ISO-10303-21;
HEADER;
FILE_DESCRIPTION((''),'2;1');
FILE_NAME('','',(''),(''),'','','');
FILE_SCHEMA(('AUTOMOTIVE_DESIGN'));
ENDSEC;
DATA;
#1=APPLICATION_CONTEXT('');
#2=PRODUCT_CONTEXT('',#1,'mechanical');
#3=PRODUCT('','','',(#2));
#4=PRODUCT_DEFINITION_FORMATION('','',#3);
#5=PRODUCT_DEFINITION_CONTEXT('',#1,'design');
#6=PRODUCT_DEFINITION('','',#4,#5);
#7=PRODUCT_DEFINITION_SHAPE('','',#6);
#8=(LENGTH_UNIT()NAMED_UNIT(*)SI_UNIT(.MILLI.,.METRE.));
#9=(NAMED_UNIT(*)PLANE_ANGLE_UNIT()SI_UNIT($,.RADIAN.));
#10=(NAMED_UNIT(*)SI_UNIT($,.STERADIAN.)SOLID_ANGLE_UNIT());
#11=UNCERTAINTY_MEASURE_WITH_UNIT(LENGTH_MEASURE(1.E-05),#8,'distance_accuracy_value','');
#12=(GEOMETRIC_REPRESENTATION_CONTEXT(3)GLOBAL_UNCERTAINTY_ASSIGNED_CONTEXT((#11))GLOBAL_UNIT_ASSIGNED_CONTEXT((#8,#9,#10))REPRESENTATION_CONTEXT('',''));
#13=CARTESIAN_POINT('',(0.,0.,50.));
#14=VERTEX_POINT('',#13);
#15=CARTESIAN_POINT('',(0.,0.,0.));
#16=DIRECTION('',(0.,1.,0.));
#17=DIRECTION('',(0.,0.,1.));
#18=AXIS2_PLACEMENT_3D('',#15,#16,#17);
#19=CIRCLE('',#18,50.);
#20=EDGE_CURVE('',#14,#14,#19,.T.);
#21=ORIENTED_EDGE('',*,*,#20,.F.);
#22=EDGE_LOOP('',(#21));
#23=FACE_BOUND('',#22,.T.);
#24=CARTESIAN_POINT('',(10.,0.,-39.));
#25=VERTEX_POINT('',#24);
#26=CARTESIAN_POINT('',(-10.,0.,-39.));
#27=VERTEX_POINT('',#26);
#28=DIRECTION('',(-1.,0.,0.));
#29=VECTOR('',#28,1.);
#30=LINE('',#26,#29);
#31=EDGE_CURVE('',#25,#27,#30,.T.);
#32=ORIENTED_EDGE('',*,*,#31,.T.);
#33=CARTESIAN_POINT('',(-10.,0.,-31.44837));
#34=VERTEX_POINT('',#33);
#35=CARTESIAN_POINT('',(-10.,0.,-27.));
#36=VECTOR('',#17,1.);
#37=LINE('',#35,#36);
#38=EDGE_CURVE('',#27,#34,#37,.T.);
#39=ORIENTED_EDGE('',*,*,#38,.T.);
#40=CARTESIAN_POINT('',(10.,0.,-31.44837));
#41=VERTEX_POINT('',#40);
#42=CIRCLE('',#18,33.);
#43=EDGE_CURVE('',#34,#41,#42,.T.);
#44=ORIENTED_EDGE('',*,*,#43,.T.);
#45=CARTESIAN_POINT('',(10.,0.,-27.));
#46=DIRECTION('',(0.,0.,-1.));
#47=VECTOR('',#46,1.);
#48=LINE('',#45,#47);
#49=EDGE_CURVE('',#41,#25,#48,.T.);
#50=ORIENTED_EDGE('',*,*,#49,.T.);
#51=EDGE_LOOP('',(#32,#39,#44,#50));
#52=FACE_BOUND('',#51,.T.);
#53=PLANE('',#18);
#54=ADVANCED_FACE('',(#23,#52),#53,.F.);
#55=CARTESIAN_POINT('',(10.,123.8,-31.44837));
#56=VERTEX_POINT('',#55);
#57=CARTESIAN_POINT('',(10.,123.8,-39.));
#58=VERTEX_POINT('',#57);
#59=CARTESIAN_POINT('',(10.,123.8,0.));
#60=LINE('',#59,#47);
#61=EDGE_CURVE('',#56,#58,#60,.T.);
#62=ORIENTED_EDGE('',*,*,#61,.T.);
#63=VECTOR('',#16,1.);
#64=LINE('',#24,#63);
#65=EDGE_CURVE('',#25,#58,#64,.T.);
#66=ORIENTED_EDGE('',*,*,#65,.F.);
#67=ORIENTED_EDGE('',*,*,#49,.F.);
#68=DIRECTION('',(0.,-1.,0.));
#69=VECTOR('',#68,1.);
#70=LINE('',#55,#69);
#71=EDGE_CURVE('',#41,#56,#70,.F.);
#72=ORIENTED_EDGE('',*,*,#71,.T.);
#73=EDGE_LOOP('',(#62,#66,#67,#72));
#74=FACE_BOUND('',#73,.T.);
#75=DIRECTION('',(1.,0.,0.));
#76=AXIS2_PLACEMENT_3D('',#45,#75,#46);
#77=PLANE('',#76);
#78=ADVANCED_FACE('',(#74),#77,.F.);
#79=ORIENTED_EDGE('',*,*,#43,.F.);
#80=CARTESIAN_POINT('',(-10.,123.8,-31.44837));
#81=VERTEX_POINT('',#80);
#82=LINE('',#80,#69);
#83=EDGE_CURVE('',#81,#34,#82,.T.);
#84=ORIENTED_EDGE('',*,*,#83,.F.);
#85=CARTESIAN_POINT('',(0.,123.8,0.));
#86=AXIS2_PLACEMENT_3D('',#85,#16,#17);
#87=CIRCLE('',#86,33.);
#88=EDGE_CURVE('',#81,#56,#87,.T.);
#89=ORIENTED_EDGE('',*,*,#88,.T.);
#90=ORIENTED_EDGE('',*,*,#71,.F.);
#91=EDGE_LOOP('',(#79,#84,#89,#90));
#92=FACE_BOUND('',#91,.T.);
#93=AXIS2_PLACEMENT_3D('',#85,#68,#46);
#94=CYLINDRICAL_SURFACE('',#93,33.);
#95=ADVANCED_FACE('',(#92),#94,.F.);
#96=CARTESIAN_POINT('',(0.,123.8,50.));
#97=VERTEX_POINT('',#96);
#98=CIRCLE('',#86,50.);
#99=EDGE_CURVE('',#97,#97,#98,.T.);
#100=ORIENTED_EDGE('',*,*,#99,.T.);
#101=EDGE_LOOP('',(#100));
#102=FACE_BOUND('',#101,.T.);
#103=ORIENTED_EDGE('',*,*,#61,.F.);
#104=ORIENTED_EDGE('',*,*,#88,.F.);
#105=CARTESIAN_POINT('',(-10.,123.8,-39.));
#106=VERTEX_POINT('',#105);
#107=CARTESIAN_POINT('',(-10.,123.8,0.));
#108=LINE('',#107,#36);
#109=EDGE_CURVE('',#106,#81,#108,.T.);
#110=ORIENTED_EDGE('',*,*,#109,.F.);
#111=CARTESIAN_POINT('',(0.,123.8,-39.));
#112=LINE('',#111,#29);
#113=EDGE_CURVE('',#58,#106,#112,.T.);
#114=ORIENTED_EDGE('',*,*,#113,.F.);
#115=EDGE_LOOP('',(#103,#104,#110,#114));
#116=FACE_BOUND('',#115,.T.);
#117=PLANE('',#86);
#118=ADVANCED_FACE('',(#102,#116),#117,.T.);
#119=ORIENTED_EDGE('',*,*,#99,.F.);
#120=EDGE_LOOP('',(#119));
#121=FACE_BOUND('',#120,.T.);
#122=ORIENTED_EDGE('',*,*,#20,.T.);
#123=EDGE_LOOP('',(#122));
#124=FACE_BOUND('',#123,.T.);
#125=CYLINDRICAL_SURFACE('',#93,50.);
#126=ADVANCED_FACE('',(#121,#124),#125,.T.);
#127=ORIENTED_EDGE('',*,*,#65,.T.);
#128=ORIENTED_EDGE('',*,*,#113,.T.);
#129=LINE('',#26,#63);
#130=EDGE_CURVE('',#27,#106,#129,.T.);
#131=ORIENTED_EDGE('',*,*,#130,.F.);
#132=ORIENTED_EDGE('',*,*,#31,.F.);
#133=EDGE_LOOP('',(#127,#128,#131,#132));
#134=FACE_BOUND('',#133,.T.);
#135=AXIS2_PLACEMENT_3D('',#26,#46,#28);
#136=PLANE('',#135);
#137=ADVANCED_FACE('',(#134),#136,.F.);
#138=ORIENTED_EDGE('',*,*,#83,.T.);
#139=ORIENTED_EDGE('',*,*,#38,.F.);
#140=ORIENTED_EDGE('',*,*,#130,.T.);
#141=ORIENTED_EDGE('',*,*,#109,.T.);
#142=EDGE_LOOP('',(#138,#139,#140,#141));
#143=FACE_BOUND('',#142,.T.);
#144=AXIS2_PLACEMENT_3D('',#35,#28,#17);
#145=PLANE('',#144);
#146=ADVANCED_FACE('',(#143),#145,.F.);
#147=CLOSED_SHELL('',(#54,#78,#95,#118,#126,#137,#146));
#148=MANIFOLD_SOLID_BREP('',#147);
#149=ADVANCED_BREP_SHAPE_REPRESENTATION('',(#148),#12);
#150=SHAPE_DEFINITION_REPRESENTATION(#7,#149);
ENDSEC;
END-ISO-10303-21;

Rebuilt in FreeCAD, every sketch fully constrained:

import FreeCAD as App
import Part
import Sketcher


def add_polygon(sketch, points):
    """Adds a closed chain of lines whose ends are joined by coincident constraints."""
    first, n = sketch.GeometryCount, len(points)
    for a, b in zip(points, points[1:] + points[:1]):
        sketch.addGeometry(Part.LineSegment(App.Vector(*a, 0), App.Vector(*b, 0)), False)
    for i in range(n):
        sketch.addConstraint(Sketcher.Constraint("Coincident", first + i, 2, first + (i + 1) % n, 1))

doc = App.newDocument("Part")
body = doc.addObject("PartDesign::Body", "Body")

sketch1 = body.newObject("Sketcher::SketchObject", "Sketch")
sketch1.AttachmentSupport = (doc.getObject("XZ_Plane"), [""])
sketch1.MapMode = "FlatFace"
sketch1.addGeometry([
    Part.Circle(App.Vector(0, 0, 0), App.Vector(0, 0, 1), 50),
    Part.Circle(App.Vector(0, 0, 0), App.Vector(0, 0, 1), 33),
], False)
sketch1.addConstraint([
    Sketcher.Constraint("Coincident", 0, 3, -1, 1),
    Sketcher.Constraint("Coincident", 1, 3, -1, 1),
    Sketcher.Constraint("Diameter", 0, 100.0),
    Sketcher.Constraint("Diameter", 1, 66.0),
])
pad1 = body.newObject("PartDesign::Pad", "Pad")
pad1.Profile = sketch1
pad1.Length = 123.8
pad1.Reversed = True

sketch2 = body.newObject("Sketcher::SketchObject", "Sketch001")
sketch2.AttachmentSupport = (doc.getObject("XZ_Plane"), [""])
sketch2.MapMode = "FlatFace"
sketch2.AttachmentOffset = App.Placement(App.Vector(0, 0, -123.8), App.Rotation())
add_polygon(sketch2, [(-10, -39), (-10, -27), (10, -27), (10, -39)])
sketch2.addConstraint([
    Sketcher.Constraint("Vertical", 0),
    Sketcher.Constraint("Horizontal", 1),
    Sketcher.Constraint("Vertical", 2),
    Sketcher.Constraint("Horizontal", 3),
    Sketcher.Constraint("DistanceX", 1, 1, 1, 2, 20.0),
    Sketcher.Constraint("DistanceY", 0, 1, 0, 2, 12.0),
    Sketcher.Constraint("DistanceX", 0, 2, -1, 1, 10.0),
    Sketcher.Constraint("DistanceY", 0, 2, -1, 1, 27.0),
])
pocket1 = body.newObject("PartDesign::Pocket", "Pocket")
pocket1.Profile = sketch2
pocket1.Type = "ThroughAll"
pocket1.Midplane = True

doc.recompute()
